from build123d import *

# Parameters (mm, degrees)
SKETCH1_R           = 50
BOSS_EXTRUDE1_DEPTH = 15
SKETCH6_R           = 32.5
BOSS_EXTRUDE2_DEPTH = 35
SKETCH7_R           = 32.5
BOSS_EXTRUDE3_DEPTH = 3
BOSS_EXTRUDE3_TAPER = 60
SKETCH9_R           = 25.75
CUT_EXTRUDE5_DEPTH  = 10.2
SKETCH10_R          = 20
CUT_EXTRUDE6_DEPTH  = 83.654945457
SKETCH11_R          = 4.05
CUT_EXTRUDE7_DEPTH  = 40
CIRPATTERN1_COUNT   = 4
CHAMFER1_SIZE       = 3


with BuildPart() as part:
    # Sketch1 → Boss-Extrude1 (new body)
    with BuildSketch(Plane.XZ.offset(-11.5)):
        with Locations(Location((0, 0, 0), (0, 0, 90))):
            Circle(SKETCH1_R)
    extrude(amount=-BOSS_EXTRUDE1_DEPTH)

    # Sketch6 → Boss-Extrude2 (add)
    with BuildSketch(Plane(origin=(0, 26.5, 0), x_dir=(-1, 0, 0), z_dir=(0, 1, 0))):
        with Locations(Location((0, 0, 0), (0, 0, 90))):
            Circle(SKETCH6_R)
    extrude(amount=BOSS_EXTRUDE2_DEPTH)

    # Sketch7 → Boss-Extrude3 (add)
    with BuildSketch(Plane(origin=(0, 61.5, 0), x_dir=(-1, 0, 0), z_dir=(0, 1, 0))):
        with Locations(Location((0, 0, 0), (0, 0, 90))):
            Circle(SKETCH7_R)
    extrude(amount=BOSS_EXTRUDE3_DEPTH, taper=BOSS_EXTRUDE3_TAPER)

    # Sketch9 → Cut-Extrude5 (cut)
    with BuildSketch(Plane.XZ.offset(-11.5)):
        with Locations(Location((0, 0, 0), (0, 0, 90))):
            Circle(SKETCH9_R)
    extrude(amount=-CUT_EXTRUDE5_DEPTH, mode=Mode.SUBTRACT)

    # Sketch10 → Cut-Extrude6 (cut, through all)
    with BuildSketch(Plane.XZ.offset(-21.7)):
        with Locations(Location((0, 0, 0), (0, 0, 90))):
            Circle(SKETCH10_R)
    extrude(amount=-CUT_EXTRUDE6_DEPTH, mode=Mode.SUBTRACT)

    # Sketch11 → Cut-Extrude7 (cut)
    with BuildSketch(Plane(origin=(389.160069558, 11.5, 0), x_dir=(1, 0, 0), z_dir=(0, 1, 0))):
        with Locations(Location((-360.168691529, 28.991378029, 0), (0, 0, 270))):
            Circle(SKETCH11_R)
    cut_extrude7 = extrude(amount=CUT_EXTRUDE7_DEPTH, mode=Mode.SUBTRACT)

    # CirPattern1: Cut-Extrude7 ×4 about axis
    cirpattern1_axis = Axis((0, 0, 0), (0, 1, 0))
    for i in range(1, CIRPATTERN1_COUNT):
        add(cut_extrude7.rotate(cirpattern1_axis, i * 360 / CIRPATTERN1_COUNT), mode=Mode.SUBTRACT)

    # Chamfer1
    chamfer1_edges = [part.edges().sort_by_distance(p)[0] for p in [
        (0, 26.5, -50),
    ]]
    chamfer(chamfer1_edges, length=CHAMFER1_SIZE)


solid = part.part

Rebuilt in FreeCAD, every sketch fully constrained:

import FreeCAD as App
import Part
import Sketcher
Q = App.Units.Quantity


def edges_at(feature, points):
    """Names of the edges that pass closest to the given points."""
    edges = feature.Shape.Edges
    near = lambda p: min(range(len(edges)), key=lambda i: edges[i].distToShape(Part.Vertex(*p))[0])
    return sorted({f"Edge{near(p) + 1}" for p in points})

doc = App.newDocument("Part")
body = doc.addObject("PartDesign::Body", "Body")

sketch1 = body.newObject("Sketcher::SketchObject", "Sketch")
sketch1.AttachmentSupport = (doc.getObject("XZ_Plane"), [""])
sketch1.MapMode = "FlatFace"
sketch1.AttachmentOffset = App.Placement(App.Vector(0, 0, -11.5), App.Rotation())
sketch1.addGeometry(Part.Circle(App.Vector(0, 0, 0), App.Vector(0, 0, 1), 50), False)
sketch1.addConstraint([
    Sketcher.Constraint("Coincident", 0, 3, -1, 1),
    Sketcher.Constraint("Diameter", 0, Q("100 mm")),
])
pad1 = body.newObject("PartDesign::Pad", "Pad")
pad1.Profile = sketch1
pad1.Length = 15
pad1.Reversed = True

sketch2 = body.newObject("Sketcher::SketchObject", "Sketch001")
sketch2.AttachmentSupport = (doc.getObject("XZ_Plane"), [""])
sketch2.MapMode = "FlatFace"
sketch2.AttachmentOffset = App.Placement(App.Vector(0, 0, -26.5), App.Rotation())
sketch2.addGeometry(Part.Circle(App.Vector(0, 0, 0), App.Vector(0, 0, 1), 32), False)
sketch2.addConstraint([
    Sketcher.Constraint("Coincident", 0, 3, -1, 1),
    Sketcher.Constraint("Diameter", 0, Q("65 mm")),
])
pad2 = body.newObject("PartDesign::Pad", "Pad001")
pad2.Profile = sketch2
pad2.Length = 35
pad2.Reversed = True

sketch3 = body.newObject("Sketcher::SketchObject", "Sketch002")
sketch3.AttachmentSupport = (doc.getObject("XZ_Plane"), [""])
sketch3.MapMode = "FlatFace"
sketch3.AttachmentOffset = App.Placement(App.Vector(0, 0, -61.5), App.Rotation())
sketch3.addGeometry(Part.Circle(App.Vector(0, 0, 0), App.Vector(0, 0, 1), 32), False)
sketch3.addConstraint([
    Sketcher.Constraint("Coincident", 0, 3, -1, 1),
    Sketcher.Constraint("Diameter", 0, Q("65 mm")),
])
pad3 = body.newObject("PartDesign::Pad", "Pad002")
pad3.Profile = sketch3
pad3.Length = 3
pad3.Reversed = True
pad3.TaperAngle = -60

sketch4 = body.newObject("Sketcher::SketchObject", "Sketch003")
sketch4.AttachmentSupport = (doc.getObject("XZ_Plane"), [""])
sketch4.MapMode = "FlatFace"
sketch4.AttachmentOffset = App.Placement(App.Vector(0, 0, -11.5), App.Rotation())
sketch4.addGeometry(Part.Circle(App.Vector(0, 0, 0), App.Vector(0, 0, 1), 26), False)
sketch4.addConstraint([
    Sketcher.Constraint("Coincident", 0, 3, -1, 1),
    Sketcher.Constraint("Diameter", 0, Q("51.5 mm")),
])
pocket1 = body.newObject("PartDesign::Pocket", "Pocket")
pocket1.Profile = sketch4
pocket1.Length = 10.2

sketch5 = body.newObject("Sketcher::SketchObject", "Sketch004")
sketch5.AttachmentSupport = (doc.getObject("XZ_Plane"), [""])
sketch5.MapMode = "FlatFace"
sketch5.AttachmentOffset = App.Placement(App.Vector(0, 0, -21.7), App.Rotation())
sketch5.addGeometry(Part.Circle(App.Vector(0, 0, 0), App.Vector(0, 0, 1), 20), False)
sketch5.addConstraint([
    Sketcher.Constraint("Coincident", 0, 3, -1, 1),
    Sketcher.Constraint("Diameter", 0, Q("40 mm")),
])
pocket2 = body.newObject("PartDesign::Pocket", "Pocket001")
pocket2.Profile = sketch5
pocket2.Type = "ThroughAll"

sketch6 = body.newObject("Sketcher::SketchObject", "Sketch005")
sketch6.AttachmentSupport = (doc.getObject("XZ_Plane"), [""])
sketch6.MapMode = "FlatFace"
sketch6.AttachmentOffset = App.Placement(App.Vector(0, 0, -11.5), App.Rotation())
sketch6.addGeometry(Part.Circle(App.Vector(29, -29, 0), App.Vector(0, 0, 1), 4), False)
sketch6.addConstraint([
    Sketcher.Constraint("Diameter", 0, Q("8.1 mm")),
    Sketcher.Constraint("DistanceX", -1, 1, 0, 3, Q("28.991378 mm")),
    Sketcher.Constraint("DistanceY", 0, 3, -1, 1, Q("28.991378 mm")),
])
pocket3 = body.newObject("PartDesign::Pocket", "Pocket002")
pocket3.Profile = sketch6
pocket3.Length = 40
doc.recompute()

polarpattern = body.newObject("PartDesign::PolarPattern", "PolarPattern")
polarpattern.Originals = [pocket3]
polarpattern.Axis = (doc.getObject("Y_Axis"), [""])
polarpattern.Angle = 360
polarpattern.Occurrences = 4
body.Tip = polarpattern
doc.recompute()

chamfer = body.newObject("PartDesign::Chamfer", "Chamfer")
chamfer.Base = (polarpattern, edges_at(polarpattern, [(0, 26.5, -50)]))
chamfer.Size = 3

doc.recompute()
